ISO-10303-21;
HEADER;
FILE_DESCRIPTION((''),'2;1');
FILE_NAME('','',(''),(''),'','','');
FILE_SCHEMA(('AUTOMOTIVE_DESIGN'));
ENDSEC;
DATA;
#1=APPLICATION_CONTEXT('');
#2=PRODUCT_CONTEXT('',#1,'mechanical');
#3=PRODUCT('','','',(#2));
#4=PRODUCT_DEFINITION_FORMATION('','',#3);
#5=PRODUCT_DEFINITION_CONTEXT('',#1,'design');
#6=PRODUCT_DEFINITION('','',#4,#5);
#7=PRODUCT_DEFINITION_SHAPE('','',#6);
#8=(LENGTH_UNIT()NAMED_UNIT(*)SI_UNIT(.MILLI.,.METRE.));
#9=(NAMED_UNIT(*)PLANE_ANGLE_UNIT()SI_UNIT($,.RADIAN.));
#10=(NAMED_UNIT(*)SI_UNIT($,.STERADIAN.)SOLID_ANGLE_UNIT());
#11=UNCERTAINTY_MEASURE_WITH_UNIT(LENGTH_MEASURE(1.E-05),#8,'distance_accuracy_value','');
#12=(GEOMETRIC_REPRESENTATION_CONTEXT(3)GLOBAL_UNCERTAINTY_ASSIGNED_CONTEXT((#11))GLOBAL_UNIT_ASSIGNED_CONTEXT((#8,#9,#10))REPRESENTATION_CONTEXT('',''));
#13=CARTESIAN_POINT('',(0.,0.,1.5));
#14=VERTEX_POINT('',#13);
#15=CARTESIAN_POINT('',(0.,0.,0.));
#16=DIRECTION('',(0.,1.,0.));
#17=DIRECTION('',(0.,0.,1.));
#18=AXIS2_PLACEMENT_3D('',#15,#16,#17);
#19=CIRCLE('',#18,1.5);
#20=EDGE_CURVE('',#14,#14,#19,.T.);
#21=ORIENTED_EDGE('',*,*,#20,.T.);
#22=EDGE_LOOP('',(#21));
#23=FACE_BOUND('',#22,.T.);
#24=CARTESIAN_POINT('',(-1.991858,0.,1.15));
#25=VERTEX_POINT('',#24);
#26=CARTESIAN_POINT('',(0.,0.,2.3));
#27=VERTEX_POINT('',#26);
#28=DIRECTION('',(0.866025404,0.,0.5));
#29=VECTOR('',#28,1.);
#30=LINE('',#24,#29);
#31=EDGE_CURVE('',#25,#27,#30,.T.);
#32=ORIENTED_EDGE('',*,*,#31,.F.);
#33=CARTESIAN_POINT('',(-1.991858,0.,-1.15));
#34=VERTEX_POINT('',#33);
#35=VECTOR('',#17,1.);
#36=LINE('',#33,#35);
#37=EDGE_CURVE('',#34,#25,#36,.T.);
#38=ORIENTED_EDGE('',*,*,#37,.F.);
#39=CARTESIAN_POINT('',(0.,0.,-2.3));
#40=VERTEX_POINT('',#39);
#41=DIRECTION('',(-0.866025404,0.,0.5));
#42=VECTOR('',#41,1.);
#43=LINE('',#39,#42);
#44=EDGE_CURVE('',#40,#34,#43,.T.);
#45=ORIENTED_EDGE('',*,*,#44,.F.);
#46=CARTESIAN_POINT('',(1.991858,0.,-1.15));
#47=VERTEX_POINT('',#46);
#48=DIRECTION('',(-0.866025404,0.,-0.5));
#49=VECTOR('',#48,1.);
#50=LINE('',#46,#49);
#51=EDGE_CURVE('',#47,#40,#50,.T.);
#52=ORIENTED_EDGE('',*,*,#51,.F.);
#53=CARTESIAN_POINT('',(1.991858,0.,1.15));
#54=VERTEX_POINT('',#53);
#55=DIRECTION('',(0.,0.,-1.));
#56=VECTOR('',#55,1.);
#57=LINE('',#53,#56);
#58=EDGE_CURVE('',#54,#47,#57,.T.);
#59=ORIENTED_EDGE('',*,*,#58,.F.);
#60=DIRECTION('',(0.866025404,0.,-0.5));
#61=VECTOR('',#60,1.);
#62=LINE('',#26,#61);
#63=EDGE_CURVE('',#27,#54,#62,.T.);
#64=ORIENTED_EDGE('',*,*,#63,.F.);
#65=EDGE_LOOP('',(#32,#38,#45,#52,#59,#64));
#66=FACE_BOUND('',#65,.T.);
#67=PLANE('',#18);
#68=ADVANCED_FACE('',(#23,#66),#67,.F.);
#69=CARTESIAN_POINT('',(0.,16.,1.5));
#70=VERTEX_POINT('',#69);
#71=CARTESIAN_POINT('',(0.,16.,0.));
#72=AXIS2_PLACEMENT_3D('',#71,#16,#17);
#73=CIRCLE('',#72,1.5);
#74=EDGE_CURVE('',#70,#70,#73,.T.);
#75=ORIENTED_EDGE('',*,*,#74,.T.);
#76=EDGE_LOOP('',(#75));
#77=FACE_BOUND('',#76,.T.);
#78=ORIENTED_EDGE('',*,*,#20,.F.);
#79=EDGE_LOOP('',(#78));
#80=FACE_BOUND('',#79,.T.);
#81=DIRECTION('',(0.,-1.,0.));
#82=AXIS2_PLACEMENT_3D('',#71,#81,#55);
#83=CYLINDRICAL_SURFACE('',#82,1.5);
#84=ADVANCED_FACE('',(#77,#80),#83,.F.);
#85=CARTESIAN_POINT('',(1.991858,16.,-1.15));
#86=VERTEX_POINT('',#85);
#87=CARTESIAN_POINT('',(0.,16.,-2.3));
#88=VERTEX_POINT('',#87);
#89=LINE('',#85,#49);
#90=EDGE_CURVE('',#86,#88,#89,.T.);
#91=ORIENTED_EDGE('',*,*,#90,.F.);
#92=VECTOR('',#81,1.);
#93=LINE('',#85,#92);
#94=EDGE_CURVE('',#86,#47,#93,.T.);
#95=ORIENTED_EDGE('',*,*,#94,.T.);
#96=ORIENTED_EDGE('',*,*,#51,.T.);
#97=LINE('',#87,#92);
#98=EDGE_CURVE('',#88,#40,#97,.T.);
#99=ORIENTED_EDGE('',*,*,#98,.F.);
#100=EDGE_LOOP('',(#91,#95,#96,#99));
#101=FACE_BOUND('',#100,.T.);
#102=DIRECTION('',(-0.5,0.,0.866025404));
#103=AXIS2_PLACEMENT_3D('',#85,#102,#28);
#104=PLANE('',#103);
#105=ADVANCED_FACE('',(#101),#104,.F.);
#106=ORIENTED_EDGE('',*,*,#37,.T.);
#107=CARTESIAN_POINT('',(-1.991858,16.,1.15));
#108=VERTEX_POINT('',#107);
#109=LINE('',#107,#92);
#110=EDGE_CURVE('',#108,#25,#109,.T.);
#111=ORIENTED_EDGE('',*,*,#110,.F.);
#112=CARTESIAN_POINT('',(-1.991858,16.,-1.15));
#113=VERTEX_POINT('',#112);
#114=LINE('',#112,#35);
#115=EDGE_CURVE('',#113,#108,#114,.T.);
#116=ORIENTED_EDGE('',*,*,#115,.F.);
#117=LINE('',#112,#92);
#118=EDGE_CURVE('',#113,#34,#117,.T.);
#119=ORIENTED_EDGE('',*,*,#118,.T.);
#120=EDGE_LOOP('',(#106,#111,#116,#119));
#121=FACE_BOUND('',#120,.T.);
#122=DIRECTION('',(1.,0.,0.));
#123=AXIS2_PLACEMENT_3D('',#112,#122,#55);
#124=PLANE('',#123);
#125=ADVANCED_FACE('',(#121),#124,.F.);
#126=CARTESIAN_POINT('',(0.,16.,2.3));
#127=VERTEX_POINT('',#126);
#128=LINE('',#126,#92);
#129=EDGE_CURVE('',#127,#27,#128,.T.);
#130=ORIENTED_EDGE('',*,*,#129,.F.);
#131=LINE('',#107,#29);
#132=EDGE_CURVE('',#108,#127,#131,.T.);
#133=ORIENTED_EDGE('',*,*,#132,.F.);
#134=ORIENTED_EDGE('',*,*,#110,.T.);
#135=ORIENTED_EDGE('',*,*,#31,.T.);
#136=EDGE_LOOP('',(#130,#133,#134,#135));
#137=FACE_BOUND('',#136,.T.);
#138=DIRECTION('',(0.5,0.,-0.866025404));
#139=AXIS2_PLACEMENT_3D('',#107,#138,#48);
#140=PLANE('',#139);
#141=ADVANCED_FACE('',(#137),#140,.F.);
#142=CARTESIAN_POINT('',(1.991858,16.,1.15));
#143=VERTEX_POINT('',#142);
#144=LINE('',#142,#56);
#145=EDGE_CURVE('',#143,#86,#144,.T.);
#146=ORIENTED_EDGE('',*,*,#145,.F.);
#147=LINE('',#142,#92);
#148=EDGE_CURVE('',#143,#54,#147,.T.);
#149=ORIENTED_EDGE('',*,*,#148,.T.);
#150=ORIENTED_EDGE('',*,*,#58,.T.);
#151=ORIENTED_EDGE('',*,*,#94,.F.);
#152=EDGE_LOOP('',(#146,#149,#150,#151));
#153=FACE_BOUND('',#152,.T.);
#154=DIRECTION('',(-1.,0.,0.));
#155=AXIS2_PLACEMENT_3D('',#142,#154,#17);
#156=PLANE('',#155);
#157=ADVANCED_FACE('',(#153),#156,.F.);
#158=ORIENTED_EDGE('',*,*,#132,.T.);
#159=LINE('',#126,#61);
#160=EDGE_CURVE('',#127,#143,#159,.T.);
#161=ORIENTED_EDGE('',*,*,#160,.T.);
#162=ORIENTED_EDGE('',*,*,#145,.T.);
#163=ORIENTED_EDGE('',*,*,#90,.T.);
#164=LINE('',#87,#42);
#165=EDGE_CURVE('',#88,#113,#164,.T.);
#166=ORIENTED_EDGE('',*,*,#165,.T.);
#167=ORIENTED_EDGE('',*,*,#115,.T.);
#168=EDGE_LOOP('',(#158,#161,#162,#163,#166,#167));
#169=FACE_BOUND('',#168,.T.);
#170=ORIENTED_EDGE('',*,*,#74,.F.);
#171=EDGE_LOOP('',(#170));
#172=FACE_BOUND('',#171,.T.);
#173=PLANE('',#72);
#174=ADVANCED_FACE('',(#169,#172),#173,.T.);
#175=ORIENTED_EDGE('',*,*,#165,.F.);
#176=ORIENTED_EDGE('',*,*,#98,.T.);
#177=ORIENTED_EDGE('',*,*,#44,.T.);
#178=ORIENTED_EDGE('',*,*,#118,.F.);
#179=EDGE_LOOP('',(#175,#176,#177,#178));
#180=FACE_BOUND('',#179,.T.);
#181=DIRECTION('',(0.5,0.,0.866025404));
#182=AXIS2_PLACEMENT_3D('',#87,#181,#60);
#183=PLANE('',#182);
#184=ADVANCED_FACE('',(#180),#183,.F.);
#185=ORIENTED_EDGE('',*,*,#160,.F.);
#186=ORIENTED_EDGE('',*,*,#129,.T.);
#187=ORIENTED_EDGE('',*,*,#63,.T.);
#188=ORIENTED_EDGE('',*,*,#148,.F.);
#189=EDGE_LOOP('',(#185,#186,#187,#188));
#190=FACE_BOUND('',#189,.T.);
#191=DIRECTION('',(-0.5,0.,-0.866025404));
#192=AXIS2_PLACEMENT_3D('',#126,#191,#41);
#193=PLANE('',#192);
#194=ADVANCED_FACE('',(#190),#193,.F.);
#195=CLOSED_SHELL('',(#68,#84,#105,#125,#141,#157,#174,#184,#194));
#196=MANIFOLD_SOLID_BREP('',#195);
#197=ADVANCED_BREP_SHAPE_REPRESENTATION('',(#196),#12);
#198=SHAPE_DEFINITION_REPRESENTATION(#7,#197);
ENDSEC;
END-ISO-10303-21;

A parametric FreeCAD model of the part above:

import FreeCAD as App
import Part
import Sketcher
from FreeCAD import Vector
Q = App.Units.Quantity

doc = App.newDocument("Part")
params = doc.addObject("Spreadsheet::Sheet", "Params")
for row, (alias, value) in enumerate([
    ("sketch1_diameter", "3 mm"),
    ("sketch1_height", "2.3 mm"),
    ("sketch1_length", "2.3 mm"),
    ("pad1_length", "16 mm"),
], start=1):
    params.set(f"A{row}", alias)
    params.set(f"B{row}", "=" + value)
    params.setAlias(f"B{row}", alias)

body = doc.addObject("PartDesign::Body", "Body")

sketch1 = body.newObject("Sketcher::SketchObject", "Sketch")
sketch1.AttachmentSupport = (doc.getObject("XZ_Plane"), [""])
sketch1.MapMode = "FlatFace"
sketch1.addGeometry([
    Part.LineSegment(Vector(2, -1.1, 0), Vector(0, -2.3, 0)),
    Part.LineSegment(Vector(0, -2.3, 0), Vector(-2, -1.1, 0)),
    Part.LineSegment(Vector(-2, -1.1, 0), Vector(-2, 1.1, 0)),
    Part.LineSegment(Vector(-2, 1.1, 0), Vector(0, 2.3, 0)),
    Part.LineSegment(Vector(0, 2.3, 0), Vector(2, 1.1, 0)),
    Part.LineSegment(Vector(2, 1.1, 0), Vector(2, -1.1, 0)),
    Part.Circle(Vector(0, 0, 0), Vector(0, 0, 1), 1.5),
], False)
sketch1.addConstraint([
    Sketcher.Constraint("Coincident", 0, 2, 1, 1),
    Sketcher.Constraint("Coincident", 1, 2, 2, 1),
    Sketcher.Constraint("Coincident", 2, 2, 3, 1),
    Sketcher.Constraint("Coincident", 3, 2, 4, 1),
    Sketcher.Constraint("Coincident", 4, 2, 5, 1),
    Sketcher.Constraint("Coincident", 5, 2, 0, 1),
    Sketcher.Constraint("Vertical", 2),
    Sketcher.Constraint("Vertical", 5),
    Sketcher.Constraint("Coincident", 6, 3, -1, 1),
    Sketcher.Constraint("Symmetric", 0, 2, 3, 2, -1, 1),
    Sketcher.Constraint("Symmetric", 1, 2, 4, 2, -1, 1),
    Sketcher.Constraint("PointOnObject", 0, 2, -2),
    Sketcher.Constraint("Parallel", 0, 3),
    Sketcher.Constraint("Horizontal", 2, 2, 4, 2),
    Sketcher.Constraint("Diameter", 6, Q("3 mm")),
    Sketcher.Constraint("Angle", 0, Q("-150 deg")),
    Sketcher.Constraint("DistanceY", 2, 1, 2, 2, Q("2.3 mm")),
    Sketcher.Constraint("Distance", 0, Q("2.3 mm")),
])
sketch1.setExpression("Constraints[14]", "Params.sketch1_diameter")
sketch1.setExpression("Constraints[16]", "Params.sketch1_height")
sketch1.setExpression("Constraints[17]", "Params.sketch1_length")
pad1 = body.newObject("PartDesign::Pad", "Pad")
pad1.Profile = sketch1
pad1.setExpression("Length", "Params.pad1_length")
pad1.Reversed = True

doc.recompute()
